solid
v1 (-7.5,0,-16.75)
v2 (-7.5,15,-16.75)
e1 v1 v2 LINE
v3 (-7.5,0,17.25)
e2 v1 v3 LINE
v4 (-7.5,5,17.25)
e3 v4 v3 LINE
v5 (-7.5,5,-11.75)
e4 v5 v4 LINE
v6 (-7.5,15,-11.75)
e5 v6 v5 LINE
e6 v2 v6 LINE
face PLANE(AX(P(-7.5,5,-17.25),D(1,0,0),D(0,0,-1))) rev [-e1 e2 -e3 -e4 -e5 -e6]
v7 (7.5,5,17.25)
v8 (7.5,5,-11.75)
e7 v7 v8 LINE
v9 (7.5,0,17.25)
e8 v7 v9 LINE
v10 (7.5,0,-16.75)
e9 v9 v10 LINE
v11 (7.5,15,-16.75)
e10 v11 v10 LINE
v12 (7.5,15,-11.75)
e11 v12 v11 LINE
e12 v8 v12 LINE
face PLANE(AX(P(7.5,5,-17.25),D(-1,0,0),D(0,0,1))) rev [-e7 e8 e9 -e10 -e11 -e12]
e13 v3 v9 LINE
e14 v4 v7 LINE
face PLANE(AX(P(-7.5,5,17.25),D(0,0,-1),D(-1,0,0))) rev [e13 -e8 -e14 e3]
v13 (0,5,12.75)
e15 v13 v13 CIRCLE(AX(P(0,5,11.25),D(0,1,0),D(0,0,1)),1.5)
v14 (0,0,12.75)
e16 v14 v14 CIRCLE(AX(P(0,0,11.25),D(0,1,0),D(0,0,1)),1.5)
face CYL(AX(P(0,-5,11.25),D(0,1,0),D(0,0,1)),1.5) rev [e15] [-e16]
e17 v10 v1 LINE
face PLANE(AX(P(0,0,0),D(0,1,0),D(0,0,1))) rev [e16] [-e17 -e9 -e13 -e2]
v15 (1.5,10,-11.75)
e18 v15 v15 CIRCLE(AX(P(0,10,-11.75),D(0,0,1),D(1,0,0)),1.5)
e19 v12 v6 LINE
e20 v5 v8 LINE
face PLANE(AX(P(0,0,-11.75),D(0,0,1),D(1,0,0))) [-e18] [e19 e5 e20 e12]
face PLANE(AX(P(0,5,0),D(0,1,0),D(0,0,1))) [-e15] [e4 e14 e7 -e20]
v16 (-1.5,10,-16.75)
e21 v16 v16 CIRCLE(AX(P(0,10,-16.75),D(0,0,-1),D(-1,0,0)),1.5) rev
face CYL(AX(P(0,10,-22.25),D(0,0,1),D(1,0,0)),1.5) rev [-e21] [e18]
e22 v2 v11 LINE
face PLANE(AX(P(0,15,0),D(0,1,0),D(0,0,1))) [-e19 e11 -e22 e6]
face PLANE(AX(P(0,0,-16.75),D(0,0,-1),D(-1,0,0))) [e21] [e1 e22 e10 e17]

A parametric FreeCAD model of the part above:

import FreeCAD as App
import Part
import Sketcher

V = App.Vector

doc = App.newDocument("Part")
body = doc.addObject("PartDesign::Body", "Body")

# Sketch on XZ plane
sketch1 = body.newObject("Sketcher::SketchObject", "Sketch")
sketch1.AttachmentSupport = (doc.getObject("XZ_Plane"), [""])
sketch1.MapMode = "FlatFace"
sketch1.addGeometry(Part.LineSegment(V(-8, -17, 0), V(-8, 17, 0)), False)
sketch1.addGeometry(Part.LineSegment(V(-8, 17, 0), V(8, 17, 0)), False)
sketch1.addGeometry(Part.LineSegment(V(8, 17, 0), V(8, -17, 0)), False)
sketch1.addGeometry(Part.LineSegment(V(8, -17, 0), V(-8, -17, 0)), False)
sketch1.addConstraint(Sketcher.Constraint("Coincident", 0, 2, 1, 1))
sketch1.addConstraint(Sketcher.Constraint("Coincident", 1, 2, 2, 1))
sketch1.addConstraint(Sketcher.Constraint("Coincident", 2, 2, 3, 1))
sketch1.addConstraint(Sketcher.Constraint("Coincident", 3, 2, 0, 1))
sketch1.addConstraint(Sketcher.Constraint("Vertical", 0))
sketch1.addConstraint(Sketcher.Constraint("Horizontal", 1))
sketch1.addConstraint(Sketcher.Constraint("Vertical", 2))
sketch1.addConstraint(Sketcher.Constraint("Horizontal", 3))
sketch1.addConstraint(Sketcher.Constraint("Symmetric", 0, 2, 2, 2, -1, 1))
sketch1.addConstraint(Sketcher.Constraint("DistanceX", 1, 1, 1, 2, 15.0))
sketch1.addConstraint(Sketcher.Constraint("DistanceY", 0, 1, 0, 2, 34.5))
pad1 = body.newObject("PartDesign::Pad", "Pad")
pad1.Profile = sketch1
pad1.Length = 5
pad1.Reversed = True

# Sketch on XZ plane
sketch2 = body.newObject("Sketcher::SketchObject", "Sketch001")
sketch2.AttachmentSupport = (doc.getObject("XZ_Plane"), [""])
sketch2.MapMode = "FlatFace"
sketch2.AttachmentOffset = App.Placement(V(0, 0, -5), App.Rotation())
sketch2.addGeometry(Part.LineSegment(V(-8, -17, 0), V(-8, -12, 0)), False)
sketch2.addGeometry(Part.LineSegment(V(-8, -12, 0), V(8, -12, 0)), False)
sketch2.addGeometry(Part.LineSegment(V(8, -12, 0), V(8, -17, 0)), False)
sketch2.addGeometry(Part.LineSegment(V(8, -17, 0), V(-8, -17, 0)), False)
sketch2.addConstraint(Sketcher.Constraint("Coincident", 0, 2, 1, 1))
sketch2.addConstraint(Sketcher.Constraint("Coincident", 1, 2, 2, 1))
sketch2.addConstraint(Sketcher.Constraint("Coincident", 2, 2, 3, 1))
sketch2.addConstraint(Sketcher.Constraint("Coincident", 3, 2, 0, 1))
sketch2.addConstraint(Sketcher.Constraint("Vertical", 0))
sketch2.addConstraint(Sketcher.Constraint("Horizontal", 1))
sketch2.addConstraint(Sketcher.Constraint("Vertical", 2))
sketch2.addConstraint(Sketcher.Constraint("Horizontal", 3))
sketch2.addConstraint(Sketcher.Constraint("DistanceX", 1, 1, 1, 2, 15.0))
sketch2.addConstraint(Sketcher.Constraint("DistanceY", 0, 1, 0, 2, 5.0))
sketch2.addConstraint(Sketcher.Constraint("DistanceX", 0, 2, -1, 1, 7.5))
sketch2.addConstraint(Sketcher.Constraint("DistanceY", 0, 2, -1, 1, 12.25))
pad2 = body.newObject("PartDesign::Pad", "Pad001")
pad2.Profile = sketch2
pad2.Length = 10
pad2.Reversed = True

# Sketch on XZ plane
sketch3 = body.newObject("Sketcher::SketchObject", "Sketch002")
sketch3.AttachmentSupport = (doc.getObject("XZ_Plane"), [""])
sketch3.MapMode = "FlatFace"
sketch3.AttachmentOffset = App.Placement(V(0, 0, -5), App.Rotation())
sketch3.addGeometry(Part.Circle(V(0, 11.2, 0), V(0, 0, 1), 1.5), False)
sketch3.addConstraint(Sketcher.Constraint("PointOnObject", 0, 3, -2))
sketch3.addConstraint(Sketcher.Constraint("Diameter", 0, 3.0))
sketch3.addConstraint(Sketcher.Constraint("DistanceY", -1, 1, 0, 3, 11.25))
pocket1 = body.newObject("PartDesign::Pocket", "Pocket")
pocket1.Profile = sketch3
pocket1.Length = 10
pocket1.Reversed = True

# Sketch on XY plane
sketch4 = body.newObject("Sketcher::SketchObject", "Sketch003")
sketch4.AttachmentSupport = (doc.getObject("XY_Plane"), [""])
sketch4.MapMode = "FlatFace"
sketch4.AttachmentOffset = App.Placement(V(0, 0, -12.25), App.Rotation())
sketch4.addGeometry(Part.Circle(V(0, 10, 0), V(0, 0, 1), 1.5), False)
sketch4.addConstraint(Sketcher.Constraint("PointOnObject", 0, 3, -2))
sketch4.addConstraint(Sketcher.Constraint("Diameter", 0, 3.0))
sketch4.addConstraint(Sketcher.Constraint("DistanceY", -1, 1, 0, 3, 10.0))
pocket2 = body.newObject("PartDesign::Pocket", "Pocket001")
pocket2.Profile = sketch4
pocket2.Length = 10

# Sketch on XY plane
sketch5 = body.newObject("Sketcher::SketchObject", "Sketch004")
sketch5.AttachmentSupport = (doc.getObject("XY_Plane"), [""])
sketch5.MapMode = "FlatFace"
sketch5.AttachmentOffset = App.Placement(V(0, 0, -17.25), App.Rotation())
sketch5.addGeometry(Part.LineSegment(V(8, 15, 0), V(8, 0, 0)), False)
sketch5.addGeometry(Part.LineSegment(V(8, 0, 0), V(-8, 0, 0)), False)
sketch5.addGeometry(Part.LineSegment(V(-8, 0, 0), V(-8, 15, 0)), False)
sketch5.addGeometry(Part.LineSegment(V(-8, 15, 0), V(8, 15, 0)), False)
sketch5.addConstraint(Sketcher.Constraint("Coincident", 0, 2, 1, 1))
sketch5.addConstraint(Sketcher.Constraint("Coincident", 1, 2, 2, 1))
sketch5.addConstraint(Sketcher.Constraint("Coincident", 2, 2, 3, 1))
sketch5.addConstraint(Sketcher.Constraint("Coincident", 3, 2, 0, 1))
sketch5.addConstraint(Sketcher.Constraint("Vertical", 0))
sketch5.addConstraint(Sketcher.Constraint("Horizontal", 1))
sketch5.addConstraint(Sketcher.Constraint("Vertical", 2))
sketch5.addConstraint(Sketcher.Constraint("Horizontal", 3))
sketch5.addConstraint(Sketcher.Constraint("Symmetric", 0, 2, 1, 2, -1, 1))
sketch5.addConstraint(Sketcher.Constraint("Equal", 3, 0))
sketch5.addConstraint(Sketcher.Constraint("DistanceX", 1, 2, 1, 1, 15.0))
pocket3 = body.newObject("PartDesign::Pocket", "Pocket002")
pocket3.Profile = sketch5
pocket3.Length = 0.5
pocket3.Reversed = True

# Sketch on XY plane
sketch6 = body.newObject("Sketcher::SketchObject", "Sketch005")
sketch6.AttachmentSupport = (doc.getObject("XY_Plane"), [""])
sketch6.MapMode = "FlatFace"
sketch6.AttachmentOffset = App.Placement(V(0, 0, -11.75), App.Rotation())
sketch6.addGeometry(Part.LineSegment(V(-7.5, 15, 0), V(-7.5, 5, 0)), False)
sketch6.addGeometry(Part.LineSegment(V(-7.5, 5, 0), V(7.5, 5, 0)), False)
sketch6.addGeometry(Part.LineSegment(V(7.5, 5, 0), V(7.5, 15, 0)), False)
sketch6.addGeometry(Part.LineSegment(V(7.5, 15, 0), V(-7.5, 15, 0)), False)
sketch6.addGeometry(Part.Circle(V(0, 10, 0), V(0, 0, 1), 1.5), False)
sketch6.addConstraint(Sketcher.Constraint("Coincident", 0, 2, 1, 1))
sketch6.addConstraint(Sketcher.Constraint("Coincident", 1, 2, 2, 1))
sketch6.addConstraint(Sketcher.Constraint("Coincident", 2, 2, 3, 1))
sketch6.addConstraint(Sketcher.Constraint("Coincident", 3, 2, 0, 1))
sketch6.addConstraint(Sketcher.Constraint("Vertical", 0))
sketch6.addConstraint(Sketcher.Constraint("Horizontal", 1))
sketch6.addConstraint(Sketcher.Constraint("Vertical", 2))
sketch6.addConstraint(Sketcher.Constraint("Horizontal", 3))
sketch6.addConstraint(Sketcher.Constraint("PointOnObject", 4, 3, -2))
sketch6.addConstraint(Sketcher.Constraint("Diameter", 4, 3.0))
sketch6.addConstraint(Sketcher.Constraint("DistanceX", 1, 1, 1, 2, 15.0))
sketch6.addConstraint(Sketcher.Constraint("DistanceY", 0, 2, 0, 1, 10.0))
sketch6.addConstraint(Sketcher.Constraint("DistanceY", -1, 1, 4, 3, 10.0))
sketch6.addConstraint(Sketcher.Constraint("DistanceY", -1, 1, 0, 2, 5.0))
sketch6.addConstraint(Sketcher.Constraint("DistanceX", 0, 2, -1, 1, 7.5))
pad3 = body.newObject("PartDesign::Pad", "Pad002")
pad3.Profile = sketch6
pad3.Length = 0.5
pad3.Reversed = True

doc.recompute()
